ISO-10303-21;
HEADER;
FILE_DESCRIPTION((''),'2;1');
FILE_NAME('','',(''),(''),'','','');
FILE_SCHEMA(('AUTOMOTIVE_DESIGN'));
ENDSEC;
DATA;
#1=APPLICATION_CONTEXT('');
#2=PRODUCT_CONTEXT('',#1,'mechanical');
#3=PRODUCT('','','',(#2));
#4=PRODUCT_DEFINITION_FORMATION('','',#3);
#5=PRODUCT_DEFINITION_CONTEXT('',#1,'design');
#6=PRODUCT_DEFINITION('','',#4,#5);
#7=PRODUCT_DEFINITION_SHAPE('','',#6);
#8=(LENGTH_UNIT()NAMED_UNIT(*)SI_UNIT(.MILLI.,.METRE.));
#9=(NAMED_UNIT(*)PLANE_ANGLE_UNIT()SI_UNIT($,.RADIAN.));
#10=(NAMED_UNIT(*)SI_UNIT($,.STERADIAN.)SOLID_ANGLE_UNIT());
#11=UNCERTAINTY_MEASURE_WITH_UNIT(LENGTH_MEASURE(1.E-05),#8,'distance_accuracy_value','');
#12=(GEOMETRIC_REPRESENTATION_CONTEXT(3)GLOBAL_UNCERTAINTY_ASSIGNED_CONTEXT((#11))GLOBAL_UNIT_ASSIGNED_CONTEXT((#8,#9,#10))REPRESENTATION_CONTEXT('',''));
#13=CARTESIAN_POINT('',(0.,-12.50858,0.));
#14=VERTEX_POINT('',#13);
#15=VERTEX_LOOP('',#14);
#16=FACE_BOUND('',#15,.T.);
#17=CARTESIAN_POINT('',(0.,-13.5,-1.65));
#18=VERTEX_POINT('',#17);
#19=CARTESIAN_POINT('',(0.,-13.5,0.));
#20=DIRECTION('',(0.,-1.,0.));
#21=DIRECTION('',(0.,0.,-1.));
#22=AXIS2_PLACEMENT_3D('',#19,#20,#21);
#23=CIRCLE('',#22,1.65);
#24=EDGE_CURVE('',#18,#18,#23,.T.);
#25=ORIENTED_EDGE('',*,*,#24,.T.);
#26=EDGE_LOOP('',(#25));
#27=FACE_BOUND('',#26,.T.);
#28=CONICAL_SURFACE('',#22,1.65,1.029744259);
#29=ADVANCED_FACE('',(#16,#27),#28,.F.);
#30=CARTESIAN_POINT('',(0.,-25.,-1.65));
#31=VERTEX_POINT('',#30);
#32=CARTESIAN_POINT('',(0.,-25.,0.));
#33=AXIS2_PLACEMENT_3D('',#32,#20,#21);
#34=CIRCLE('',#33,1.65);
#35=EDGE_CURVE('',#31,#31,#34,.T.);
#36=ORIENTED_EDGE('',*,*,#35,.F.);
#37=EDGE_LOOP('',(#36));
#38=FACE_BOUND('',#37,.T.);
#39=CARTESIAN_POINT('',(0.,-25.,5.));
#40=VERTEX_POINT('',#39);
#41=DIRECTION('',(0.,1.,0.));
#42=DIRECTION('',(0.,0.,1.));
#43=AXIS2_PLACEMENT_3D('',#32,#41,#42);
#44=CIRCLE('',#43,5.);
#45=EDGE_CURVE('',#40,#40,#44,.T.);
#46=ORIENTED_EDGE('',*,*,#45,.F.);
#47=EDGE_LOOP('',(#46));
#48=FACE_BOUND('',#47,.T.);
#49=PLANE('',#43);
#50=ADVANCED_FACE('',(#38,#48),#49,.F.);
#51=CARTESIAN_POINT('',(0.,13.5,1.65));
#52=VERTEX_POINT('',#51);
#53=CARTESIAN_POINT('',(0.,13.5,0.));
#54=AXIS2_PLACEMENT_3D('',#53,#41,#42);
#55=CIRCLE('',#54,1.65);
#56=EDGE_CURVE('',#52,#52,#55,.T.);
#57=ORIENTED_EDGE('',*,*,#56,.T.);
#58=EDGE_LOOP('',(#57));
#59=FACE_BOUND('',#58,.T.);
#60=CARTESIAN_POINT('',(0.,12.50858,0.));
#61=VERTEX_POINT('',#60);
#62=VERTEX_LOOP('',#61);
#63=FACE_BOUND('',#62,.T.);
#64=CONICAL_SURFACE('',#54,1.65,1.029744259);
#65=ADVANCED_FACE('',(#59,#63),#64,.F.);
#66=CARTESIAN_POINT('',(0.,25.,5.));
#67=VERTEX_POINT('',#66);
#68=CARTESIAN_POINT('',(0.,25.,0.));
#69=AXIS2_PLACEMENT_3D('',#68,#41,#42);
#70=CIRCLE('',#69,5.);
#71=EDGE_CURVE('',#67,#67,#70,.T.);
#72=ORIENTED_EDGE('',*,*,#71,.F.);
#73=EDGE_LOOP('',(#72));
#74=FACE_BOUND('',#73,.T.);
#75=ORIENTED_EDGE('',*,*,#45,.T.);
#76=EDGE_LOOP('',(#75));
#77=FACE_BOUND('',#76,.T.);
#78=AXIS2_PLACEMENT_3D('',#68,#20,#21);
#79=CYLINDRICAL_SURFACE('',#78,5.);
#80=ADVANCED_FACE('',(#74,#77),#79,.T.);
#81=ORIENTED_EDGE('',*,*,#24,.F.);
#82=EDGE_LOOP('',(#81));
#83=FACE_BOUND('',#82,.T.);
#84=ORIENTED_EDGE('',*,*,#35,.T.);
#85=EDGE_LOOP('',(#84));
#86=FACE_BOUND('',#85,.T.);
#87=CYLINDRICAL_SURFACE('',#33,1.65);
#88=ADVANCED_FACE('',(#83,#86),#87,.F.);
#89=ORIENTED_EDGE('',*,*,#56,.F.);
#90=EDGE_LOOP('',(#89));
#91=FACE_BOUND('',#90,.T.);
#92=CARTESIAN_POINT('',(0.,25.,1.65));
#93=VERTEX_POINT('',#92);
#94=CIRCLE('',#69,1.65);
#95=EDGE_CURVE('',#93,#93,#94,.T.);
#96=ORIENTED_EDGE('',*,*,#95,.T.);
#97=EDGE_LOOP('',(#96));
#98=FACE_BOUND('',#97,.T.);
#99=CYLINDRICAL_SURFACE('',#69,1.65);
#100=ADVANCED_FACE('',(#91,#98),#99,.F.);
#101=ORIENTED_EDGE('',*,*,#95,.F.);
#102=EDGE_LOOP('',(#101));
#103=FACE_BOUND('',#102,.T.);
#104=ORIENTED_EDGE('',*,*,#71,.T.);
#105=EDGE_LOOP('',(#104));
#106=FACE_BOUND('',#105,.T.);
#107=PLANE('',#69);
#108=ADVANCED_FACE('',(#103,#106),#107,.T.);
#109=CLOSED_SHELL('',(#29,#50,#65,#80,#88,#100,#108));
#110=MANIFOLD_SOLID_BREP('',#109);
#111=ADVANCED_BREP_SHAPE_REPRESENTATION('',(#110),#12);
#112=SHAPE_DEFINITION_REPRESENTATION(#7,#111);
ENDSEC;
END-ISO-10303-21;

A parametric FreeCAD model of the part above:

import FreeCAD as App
import Part
import Sketcher
from FreeCAD import Vector
Q = App.Units.Quantity


def add_polygon(sketch, points):
    """Adds a closed chain of lines whose ends are joined by coincident constraints."""
    first, n = sketch.GeometryCount, len(points)
    for a, b in zip(points, points[1:] + points[:1]):
        sketch.addGeometry(Part.LineSegment(App.Vector(*a, 0), App.Vector(*b, 0)), False)
    for i in range(n):
        sketch.addConstraint(Sketcher.Constraint("Coincident", first + i, 2, first + (i + 1) % n, 1))

doc = App.newDocument("Part")
body = doc.addObject("PartDesign::Body", "Body")

# Sketch on XZ plane
sketch1 = body.newObject("Sketcher::SketchObject", "Sketch")
sketch1.AttachmentSupport = (doc.getObject("XZ_Plane"), [""])
sketch1.MapMode = "FlatFace"
sketch1.addGeometry(Part.Circle(Vector(0, 0, 0), Vector(0, 0, 1), 5), False)
sketch1.addConstraint(Sketcher.Constraint("Coincident", 0, 3, -1, 1))
sketch1.addConstraint(Sketcher.Constraint("Diameter", 0, Q("10 mm")))
pad1 = body.newObject("PartDesign::Pad", "Pad")
pad1.Profile = sketch1
pad1.Length = 50
pad1.Midplane = True

# Sketch on YZ plane
sketch2 = body.newObject("Sketcher::SketchObject", "Sketch001")
sketch2.AttachmentSupport = (doc.getObject("YZ_Plane"), [""])
sketch2.MapMode = "FlatFace"
add_polygon(sketch2, [(12.5, 0), (25, 0), (25, 1.6), (13.5, 1.6)])  # lines 0-3
sketch2.addConstraint(Sketcher.Constraint("Horizontal", 0))
sketch2.addConstraint(Sketcher.Constraint("Vertical", 1))
sketch2.addConstraint(Sketcher.Constraint("Horizontal", 2))
sketch2.addConstraint(Sketcher.Constraint("PointOnObject", 0, 2, -1))
sketch2.addConstraint(Sketcher.Constraint("Angle", 3, Q("-121 deg")))
sketch2.addConstraint(Sketcher.Constraint("DistanceX", 2, 2, 2, 1, Q("11.5 mm")))
sketch2.addConstraint(Sketcher.Constraint("DistanceX", -1, 1, 0, 2, Q("25 mm")))
sketch2.addConstraint(Sketcher.Constraint("DistanceY", 1, 1, 1, 2, Q("1.65 mm")))
groove = body.newObject("PartDesign::Groove", "Groove")
groove.Profile = sketch2
groove.ReferenceAxis = (sketch2, ["H_Axis"])
groove.Angle = 360
doc.recompute()

mirrored = body.newObject("PartDesign::Mirrored", "Mirrored")
mirrored.Originals = [groove]
mirrored.MirrorPlane = (doc.getObject("XZ_Plane"), [""])
body.Tip = mirrored

doc.recompute()
